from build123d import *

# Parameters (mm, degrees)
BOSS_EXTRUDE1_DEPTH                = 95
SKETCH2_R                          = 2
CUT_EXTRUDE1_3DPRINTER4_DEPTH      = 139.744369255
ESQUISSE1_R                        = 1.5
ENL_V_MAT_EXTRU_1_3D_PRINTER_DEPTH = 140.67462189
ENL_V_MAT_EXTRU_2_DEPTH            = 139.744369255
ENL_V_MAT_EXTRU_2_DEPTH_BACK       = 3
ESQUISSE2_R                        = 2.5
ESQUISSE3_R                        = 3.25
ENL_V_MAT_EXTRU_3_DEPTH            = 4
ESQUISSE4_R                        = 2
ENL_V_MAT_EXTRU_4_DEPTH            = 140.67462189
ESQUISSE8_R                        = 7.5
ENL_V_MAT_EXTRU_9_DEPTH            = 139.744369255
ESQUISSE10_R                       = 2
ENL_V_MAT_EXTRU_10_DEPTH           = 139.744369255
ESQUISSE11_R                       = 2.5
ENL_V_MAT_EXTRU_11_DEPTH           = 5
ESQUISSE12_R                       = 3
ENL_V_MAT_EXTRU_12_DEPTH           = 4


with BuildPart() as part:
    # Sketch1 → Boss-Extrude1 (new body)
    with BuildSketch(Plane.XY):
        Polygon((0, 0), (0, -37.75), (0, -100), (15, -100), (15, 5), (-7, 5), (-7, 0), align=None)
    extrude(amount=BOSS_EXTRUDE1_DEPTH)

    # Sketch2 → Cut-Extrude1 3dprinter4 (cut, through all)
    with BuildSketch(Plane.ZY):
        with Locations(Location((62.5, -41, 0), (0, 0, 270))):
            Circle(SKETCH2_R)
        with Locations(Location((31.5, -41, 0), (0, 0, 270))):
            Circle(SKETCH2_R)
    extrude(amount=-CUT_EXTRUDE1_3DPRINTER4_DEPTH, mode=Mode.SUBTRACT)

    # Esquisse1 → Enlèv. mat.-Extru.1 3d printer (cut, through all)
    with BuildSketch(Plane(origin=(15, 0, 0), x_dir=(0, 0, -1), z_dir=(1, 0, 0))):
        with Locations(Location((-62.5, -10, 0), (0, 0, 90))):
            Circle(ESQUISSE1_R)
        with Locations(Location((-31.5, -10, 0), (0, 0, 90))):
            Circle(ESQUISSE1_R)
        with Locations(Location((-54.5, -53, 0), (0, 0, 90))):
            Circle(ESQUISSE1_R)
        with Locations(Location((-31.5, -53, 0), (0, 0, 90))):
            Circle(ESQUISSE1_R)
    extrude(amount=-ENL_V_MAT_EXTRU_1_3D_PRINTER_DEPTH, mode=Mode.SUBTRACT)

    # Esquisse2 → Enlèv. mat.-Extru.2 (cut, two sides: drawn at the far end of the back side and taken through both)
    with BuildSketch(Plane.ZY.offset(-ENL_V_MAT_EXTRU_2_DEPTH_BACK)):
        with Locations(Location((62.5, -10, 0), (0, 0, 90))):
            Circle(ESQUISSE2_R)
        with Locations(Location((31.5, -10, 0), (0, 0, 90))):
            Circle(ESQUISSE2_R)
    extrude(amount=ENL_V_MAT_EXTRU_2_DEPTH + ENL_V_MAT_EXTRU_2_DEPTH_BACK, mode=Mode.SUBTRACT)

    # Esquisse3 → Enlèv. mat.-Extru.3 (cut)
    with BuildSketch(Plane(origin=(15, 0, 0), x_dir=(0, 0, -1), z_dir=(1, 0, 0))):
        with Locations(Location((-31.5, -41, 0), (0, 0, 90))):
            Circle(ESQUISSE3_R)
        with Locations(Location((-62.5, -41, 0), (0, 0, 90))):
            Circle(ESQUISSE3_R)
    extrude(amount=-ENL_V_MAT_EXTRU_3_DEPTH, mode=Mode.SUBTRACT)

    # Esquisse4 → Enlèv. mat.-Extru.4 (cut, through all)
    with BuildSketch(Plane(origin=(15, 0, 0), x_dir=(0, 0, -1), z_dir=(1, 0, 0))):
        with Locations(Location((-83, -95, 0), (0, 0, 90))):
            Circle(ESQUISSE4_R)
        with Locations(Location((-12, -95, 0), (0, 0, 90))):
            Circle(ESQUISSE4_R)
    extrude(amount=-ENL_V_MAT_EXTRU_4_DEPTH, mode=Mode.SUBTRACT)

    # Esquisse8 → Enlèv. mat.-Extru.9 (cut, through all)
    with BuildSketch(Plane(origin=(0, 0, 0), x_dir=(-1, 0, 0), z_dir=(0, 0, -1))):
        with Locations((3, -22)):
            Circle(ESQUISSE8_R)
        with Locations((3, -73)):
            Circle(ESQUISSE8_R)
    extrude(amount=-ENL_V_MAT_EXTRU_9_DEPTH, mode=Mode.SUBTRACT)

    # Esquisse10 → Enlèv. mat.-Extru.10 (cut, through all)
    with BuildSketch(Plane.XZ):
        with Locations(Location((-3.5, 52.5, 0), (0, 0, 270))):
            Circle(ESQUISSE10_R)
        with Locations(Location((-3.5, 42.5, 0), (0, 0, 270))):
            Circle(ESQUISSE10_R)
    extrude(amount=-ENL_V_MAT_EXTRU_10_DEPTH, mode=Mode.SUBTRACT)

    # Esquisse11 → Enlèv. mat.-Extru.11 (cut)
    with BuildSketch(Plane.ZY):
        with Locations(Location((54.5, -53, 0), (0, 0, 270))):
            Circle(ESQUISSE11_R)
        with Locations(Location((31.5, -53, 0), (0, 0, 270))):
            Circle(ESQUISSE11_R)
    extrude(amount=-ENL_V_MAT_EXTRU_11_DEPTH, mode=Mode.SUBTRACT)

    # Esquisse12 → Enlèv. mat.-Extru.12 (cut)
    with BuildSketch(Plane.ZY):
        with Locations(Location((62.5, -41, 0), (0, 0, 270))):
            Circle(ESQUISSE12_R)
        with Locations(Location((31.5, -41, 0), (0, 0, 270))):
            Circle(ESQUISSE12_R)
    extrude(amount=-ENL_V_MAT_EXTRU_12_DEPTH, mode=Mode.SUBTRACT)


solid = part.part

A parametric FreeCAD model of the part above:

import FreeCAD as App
import Part
import Sketcher


def add_polygon(sketch, points):
    """Adds a closed chain of lines whose ends are joined by coincident constraints."""
    first, n = sketch.GeometryCount, len(points)
    for a, b in zip(points, points[1:] + points[:1]):
        sketch.addGeometry(Part.LineSegment(App.Vector(*a, 0), App.Vector(*b, 0)), False)
    for i in range(n):
        sketch.addConstraint(Sketcher.Constraint("Coincident", first + i, 2, first + (i + 1) % n, 1))

doc = App.newDocument("Part")
body = doc.addObject("PartDesign::Body", "Body")

# Sketch on XY plane
sketch1 = body.newObject("Sketcher::SketchObject", "Sketch")
sketch1.AttachmentSupport = (doc.getObject("XY_Plane"), [""])
sketch1.MapMode = "FlatFace"
add_polygon(sketch1, [(0, 0), (0, -100), (15, -100), (15, 5), (-7, 5), (-7, 0)])  # lines 0-5
sketch1.addConstraint(Sketcher.Constraint("Vertical", 0))
sketch1.addConstraint(Sketcher.Constraint("Horizontal", 1))
sketch1.addConstraint(Sketcher.Constraint("Vertical", 2))
sketch1.addConstraint(Sketcher.Constraint("Horizontal", 3))
sketch1.addConstraint(Sketcher.Constraint("Vertical", 4))
sketch1.addConstraint(Sketcher.Constraint("Horizontal", 5))
sketch1.addConstraint(Sketcher.Constraint("Coincident", 5, 2, -1, 1))
sketch1.addConstraint(Sketcher.Constraint("DistanceX", 1, 1, 1, 2, 15.0))
sketch1.addConstraint(Sketcher.Constraint("DistanceX", 3, 2, 3, 1, 22.0))
sketch1.addConstraint(Sketcher.Constraint("DistanceY", 0, 2, 0, 1, 100.0))
sketch1.addConstraint(Sketcher.Constraint("DistanceY", 2, 1, 2, 2, 105.0))
pad1 = body.newObject("PartDesign::Pad", "Pad")
pad1.Profile = sketch1
pad1.Length = 95

# Sketch on YZ plane
sketch2 = body.newObject("Sketcher::SketchObject", "Sketch001")
sketch2.AttachmentSupport = (doc.getObject("YZ_Plane"), [""])
sketch2.MapMode = "FlatFace"
sketch2.addGeometry(Part.Circle(App.Vector(-41, 62.5, 0), App.Vector(0, 0, 1), 2), False)
sketch2.addGeometry(Part.Circle(App.Vector(-41, 31.5, 0), App.Vector(0, 0, 1), 2), False)
sketch2.addConstraint(Sketcher.Constraint("Equal", 0, 1))
sketch2.addConstraint(Sketcher.Constraint("Vertical", 0, 3, 1, 3))
sketch2.addConstraint(Sketcher.Constraint("Diameter", 0, 4.0))
sketch2.addConstraint(Sketcher.Constraint("DistanceX", 0, 3, -1, 1, 41.0))
sketch2.addConstraint(Sketcher.Constraint("DistanceY", 1, 3, 0, 3, 31.0))
sketch2.addConstraint(Sketcher.Constraint("DistanceY", -1, 1, 0, 3, 62.5))
pocket1 = body.newObject("PartDesign::Pocket", "Pocket")
pocket1.Profile = sketch2
pocket1.Type = "ThroughAll"
pocket1.Reversed = True

# Sketch on YZ plane
sketch3 = body.newObject("Sketcher::SketchObject", "Sketch002")
sketch3.AttachmentSupport = (doc.getObject("YZ_Plane"), [""])
sketch3.MapMode = "FlatFace"
sketch3.AttachmentOffset = App.Placement(App.Vector(0, 0, 15), App.Rotation())
sketch3.addGeometry(Part.Circle(App.Vector(-10, 62.5, 0), App.Vector(0, 0, 1), 1.5), False)
sketch3.addGeometry(Part.Circle(App.Vector(-10, 31.5, 0), App.Vector(0, 0, 1), 1.5), False)
sketch3.addGeometry(Part.Circle(App.Vector(-53, 54.5, 0), App.Vector(0, 0, 1), 1.5), False)
sketch3.addGeometry(Part.Circle(App.Vector(-53, 31.5, 0), App.Vector(0, 0, 1), 1.5), False)
sketch3.addConstraint(Sketcher.Constraint("Equal", 0, 1))
sketch3.addConstraint(Sketcher.Constraint("Equal", 1, 2))
sketch3.addConstraint(Sketcher.Constraint("Equal", 2, 3))
sketch3.addConstraint(Sketcher.Constraint("Horizontal", 1, 3, 3, 3))
sketch3.addConstraint(Sketcher.Constraint("Vertical", 0, 3, 1, 3))
sketch3.addConstraint(Sketcher.Constraint("Vertical", 2, 3, 3, 3))
sketch3.addConstraint(Sketcher.Constraint("Diameter", 0, 3.0))
sketch3.addConstraint(Sketcher.Constraint("DistanceX", 0, 3, -1, 1, 10.0))
sketch3.addConstraint(Sketcher.Constraint("DistanceX", 2, 3, -1, 1, 53.0))
sketch3.addConstraint(Sketcher.Constraint("DistanceY", 1, 3, 0, 3, 31.0))
sketch3.addConstraint(Sketcher.Constraint("DistanceY", 2, 3, 0, 3, 8.0))
sketch3.addConstraint(Sketcher.Constraint("DistanceY", -1, 1, 0, 3, 62.5))
pocket2 = body.newObject("PartDesign::Pocket", "Pocket001")
pocket2.Profile = sketch3
pocket2.Type = "ThroughAll"

# Sketch on YZ plane
sketch4 = body.newObject("Sketcher::SketchObject", "Sketch003")
sketch4.AttachmentSupport = (doc.getObject("YZ_Plane"), [""])
sketch4.MapMode = "FlatFace"
sketch4.addGeometry(Part.Circle(App.Vector(-10, 62.5, 0), App.Vector(0, 0, 1), 2.5), False)
sketch4.addGeometry(Part.Circle(App.Vector(-10, 31.5, 0), App.Vector(0, 0, 1), 2.5), False)
sketch4.addConstraint(Sketcher.Constraint("Equal", 0, 1))
sketch4.addConstraint(Sketcher.Constraint("Vertical", 0, 3, 1, 3))
sketch4.addConstraint(Sketcher.Constraint("Diameter", 0, 5.0))
sketch4.addConstraint(Sketcher.Constraint("DistanceX", 0, 3, -1, 1, 10.0))
sketch4.addConstraint(Sketcher.Constraint("DistanceY", 1, 3, 0, 3, 31.0))
sketch4.addConstraint(Sketcher.Constraint("DistanceY", -1, 1, 0, 3, 62.5))
pocket3 = body.newObject("PartDesign::Pocket", "Pocket002")
pocket3.Profile = sketch4
pocket3.Type = "TwoLengths"
pocket3.Length = 139.744369
pocket3.Length2 = 3

# Sketch on YZ plane
sketch5 = body.newObject("Sketcher::SketchObject", "Sketch004")
sketch5.AttachmentSupport = (doc.getObject("YZ_Plane"), [""])
sketch5.MapMode = "FlatFace"
sketch5.AttachmentOffset = App.Placement(App.Vector(0, 0, 15), App.Rotation())
sketch5.addGeometry(Part.Circle(App.Vector(-41, 31.5, 0), App.Vector(0, 0, 1), 3.2), False)
sketch5.addGeometry(Part.Circle(App.Vector(-41, 62.5, 0), App.Vector(0, 0, 1), 3.2), False)
sketch5.addConstraint(Sketcher.Constraint("Equal", 0, 1))
sketch5.addConstraint(Sketcher.Constraint("Vertical", 0, 3, 1, 3))
sketch5.addConstraint(Sketcher.Constraint("Diameter", 0, 6.5))
sketch5.addConstraint(Sketcher.Constraint("DistanceX", 0, 3, -1, 1, 41.0))
sketch5.addConstraint(Sketcher.Constraint("DistanceY", 0, 3, 1, 3, 31.0))
sketch5.addConstraint(Sketcher.Constraint("DistanceY", -1, 1, 0, 3, 31.5))
pocket4 = body.newObject("PartDesign::Pocket", "Pocket003")
pocket4.Profile = sketch5
pocket4.Length = 4

# Sketch on YZ plane
sketch6 = body.newObject("Sketcher::SketchObject", "Sketch005")
sketch6.AttachmentSupport = (doc.getObject("YZ_Plane"), [""])
sketch6.MapMode = "FlatFace"
sketch6.AttachmentOffset = App.Placement(App.Vector(0, 0, 15), App.Rotation())
sketch6.addGeometry(Part.Circle(App.Vector(-95, 83, 0), App.Vector(0, 0, 1), 2), False)
sketch6.addGeometry(Part.Circle(App.Vector(-95, 12, 0), App.Vector(0, 0, 1), 2), False)
sketch6.addConstraint(Sketcher.Constraint("Equal", 0, 1))
sketch6.addConstraint(Sketcher.Constraint("Vertical", 0, 3, 1, 3))
sketch6.addConstraint(Sketcher.Constraint("Diameter", 0, 4.0))
sketch6.addConstraint(Sketcher.Constraint("DistanceX", 0, 3, -1, 1, 95.0))
sketch6.addConstraint(Sketcher.Constraint("DistanceY", -1, 1, 0, 3, 83.0))
sketch6.addConstraint(Sketcher.Constraint("DistanceY", -1, 1, 1, 3, 12.0))
pocket5 = body.newObject("PartDesign::Pocket", "Pocket004")
pocket5.Profile = sketch6
pocket5.Type = "ThroughAll"

# Sketch on XY plane
sketch7 = body.newObject("Sketcher::SketchObject", "Sketch006")
sketch7.AttachmentSupport = (doc.getObject("XY_Plane"), [""])
sketch7.MapMode = "FlatFace"
sketch7.addGeometry(Part.Circle(App.Vector(-3, -22, 0), App.Vector(0, 0, 1), 8), False)
sketch7.addGeometry(Part.Circle(App.Vector(-3, -73, 0), App.Vector(0, 0, 1), 8), False)
sketch7.addConstraint(Sketcher.Constraint("Equal", 0, 1))
sketch7.addConstraint(Sketcher.Constraint("Vertical", 0, 3, 1, 3))
sketch7.addConstraint(Sketcher.Constraint("Diameter", 0, 15.0))
sketch7.addConstraint(Sketcher.Constraint("DistanceX", 0, 3, -1, 1, 3.0))
sketch7.addConstraint(Sketcher.Constraint("DistanceY", 0, 3, -1, 1, 22.0))
sketch7.addConstraint(Sketcher.Constraint("DistanceY", 1, 3, -1, 1, 73.0))
pocket6 = body.newObject("PartDesign::Pocket", "Pocket005")
pocket6.Profile = sketch7
pocket6.Type = "ThroughAll"
pocket6.Reversed = True

# Sketch on XZ plane
sketch8 = body.newObject("Sketcher::SketchObject", "Sketch007")
sketch8.AttachmentSupport = (doc.getObject("XZ_Plane"), [""])
sketch8.MapMode = "FlatFace"
sketch8.addGeometry(Part.Circle(App.Vector(-3.5, 52.5, 0), App.Vector(0, 0, 1), 2), False)
sketch8.addGeometry(Part.Circle(App.Vector(-3.5, 42.5, 0), App.Vector(0, 0, 1), 2), False)
sketch8.addConstraint(Sketcher.Constraint("Equal", 0, 1))
sketch8.addConstraint(Sketcher.Constraint("Vertical", 0, 3, 1, 3))
sketch8.addConstraint(Sketcher.Constraint("Diameter", 0, 4.0))
sketch8.addConstraint(Sketcher.Constraint("DistanceY", 1, 3, 0, 3, 10.0))
sketch8.addConstraint(Sketcher.Constraint("DistanceX", 0, 3, -1, 1, 3.5))
sketch8.addConstraint(Sketcher.Constraint("DistanceY", -1, 1, 0, 3, 52.5))
pocket7 = body.newObject("PartDesign::Pocket", "Pocket006")
pocket7.Profile = sketch8
pocket7.Type = "ThroughAll"

# Sketch on YZ plane
sketch9 = body.newObject("Sketcher::SketchObject", "Sketch008")
sketch9.AttachmentSupport = (doc.getObject("YZ_Plane"), [""])
sketch9.MapMode = "FlatFace"
sketch9.addGeometry(Part.Circle(App.Vector(-53, 54.5, 0), App.Vector(0, 0, 1), 2.5), False)
sketch9.addGeometry(Part.Circle(App.Vector(-53, 31.5, 0), App.Vector(0, 0, 1), 2.5), False)
sketch9.addConstraint(Sketcher.Constraint("Equal", 0, 1))
sketch9.addConstraint(Sketcher.Constraint("Vertical", 0, 3, 1, 3))
sketch9.addConstraint(Sketcher.Constraint("Diameter", 0, 5.0))
sketch9.addConstraint(Sketcher.Constraint("DistanceX", 0, 3, -1, 1, 53.0))
sketch9.addConstraint(Sketcher.Constraint("DistanceY", 1, 3, 0, 3, 23.0))
sketch9.addConstraint(Sketcher.Constraint("DistanceY", -1, 1, 0, 3, 54.5))
pocket8 = body.newObject("PartDesign::Pocket", "Pocket007")
pocket8.Profile = sketch9
pocket8.Length = 5
pocket8.Reversed = True

# Sketch on YZ plane
sketch10 = body.newObject("Sketcher::SketchObject", "Sketch009")
sketch10.AttachmentSupport = (doc.getObject("YZ_Plane"), [""])
sketch10.MapMode = "FlatFace"
sketch10.addGeometry(Part.Circle(App.Vector(-41, 62.5, 0), App.Vector(0, 0, 1), 3), False)
sketch10.addGeometry(Part.Circle(App.Vector(-41, 31.5, 0), App.Vector(0, 0, 1), 3), False)
sketch10.addConstraint(Sketcher.Constraint("Equal", 0, 1))
sketch10.addConstraint(Sketcher.Constraint("Vertical", 0, 3, 1, 3))
sketch10.addConstraint(Sketcher.Constraint("Diameter", 0, 6.0))
sketch10.addConstraint(Sketcher.Constraint("DistanceX", 0, 3, -1, 1, 41.0))
sketch10.addConstraint(Sketcher.Constraint("DistanceY", 1, 3, 0, 3, 31.0))
sketch10.addConstraint(Sketcher.Constraint("DistanceY", -1, 1, 0, 3, 62.5))
pocket9 = body.newObject("PartDesign::Pocket", "Pocket008")
pocket9.Profile = sketch10
pocket9.Length = 4
pocket9.Reversed = True

doc.recompute()
